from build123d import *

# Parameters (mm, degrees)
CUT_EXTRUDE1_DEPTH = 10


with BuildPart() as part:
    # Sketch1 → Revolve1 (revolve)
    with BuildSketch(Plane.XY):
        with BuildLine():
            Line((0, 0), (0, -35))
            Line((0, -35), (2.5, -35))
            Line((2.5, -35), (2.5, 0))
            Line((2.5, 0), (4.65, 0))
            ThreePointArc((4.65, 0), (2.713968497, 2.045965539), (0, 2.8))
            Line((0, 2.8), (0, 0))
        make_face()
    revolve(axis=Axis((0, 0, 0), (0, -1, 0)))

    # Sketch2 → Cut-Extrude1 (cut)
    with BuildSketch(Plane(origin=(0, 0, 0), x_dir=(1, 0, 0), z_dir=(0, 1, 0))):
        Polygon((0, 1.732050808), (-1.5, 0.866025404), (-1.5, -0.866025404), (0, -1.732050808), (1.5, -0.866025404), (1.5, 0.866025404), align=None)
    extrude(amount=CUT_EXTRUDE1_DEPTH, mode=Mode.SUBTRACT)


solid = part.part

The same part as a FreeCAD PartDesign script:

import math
import FreeCAD as App
import Part
import Sketcher

V = App.Vector
Q = App.Units.Quantity


def add_polygon(sketch, points):
    """Adds a closed chain of lines whose ends are joined by coincident constraints."""
    first, n = sketch.GeometryCount, len(points)
    for a, b in zip(points, points[1:] + points[:1]):
        sketch.addGeometry(Part.LineSegment(App.Vector(*a, 0), App.Vector(*b, 0)), False)
    for i in range(n):
        sketch.addConstraint(Sketcher.Constraint("Coincident", first + i, 2, first + (i + 1) % n, 1))

doc = App.newDocument("Part")
body = doc.addObject("PartDesign::Body", "Body")

# Sketch on XY plane
sketch1 = doc.addObject("Sketcher::SketchObject", "Sketch")
body.addObject(sketch1)
sketch1.AttachmentSupport = (doc.XY_Plane, [""])
sketch1.MapMode = "FlatFace"
sketch1.addGeometry(Part.LineSegment(V(0, -35, 0), V(2.5, -35, 0)), False)
sketch1.addGeometry(Part.LineSegment(V(2.5, -35, 0), V(2.5, 0, 0)), False)
sketch1.addGeometry(Part.LineSegment(V(2.5, 0, 0), V(4.65, 0, 0)), False)
sketch1.addGeometry(Part.ArcOfCircle(Part.Circle(V(0, -2.461161, 0), V(0, 0, 1), 5.261161), math.radians(27.891458), math.radians(90)), False)
sketch1.addGeometry(Part.LineSegment(V(0, 2.8, 0), V(0, -35, 0)), False)
sketch1.addConstraint(Sketcher.Constraint("Coincident", 0, 2, 1, 1))
sketch1.addConstraint(Sketcher.Constraint("Coincident", 1, 2, 2, 1))
sketch1.addConstraint(Sketcher.Constraint("Coincident", 2, 2, 3, 1))
sketch1.addConstraint(Sketcher.Constraint("Coincident", 3, 2, 4, 1))
sketch1.addConstraint(Sketcher.Constraint("Coincident", 4, 2, 0, 1))
sketch1.addConstraint(Sketcher.Constraint("Horizontal", 0))
sketch1.addConstraint(Sketcher.Constraint("Vertical", 1))
sketch1.addConstraint(Sketcher.Constraint("Horizontal", 2))
sketch1.addConstraint(Sketcher.Constraint("Vertical", 4))
sketch1.addConstraint(Sketcher.Constraint("PointOnObject", 3, 3, -2))
sketch1.addConstraint(Sketcher.Constraint("PointOnObject", 1, 2, -1))
sketch1.addConstraint(Sketcher.Constraint("PointOnObject", 3, 2, -2))
sketch1.addConstraint(Sketcher.Constraint("DistanceY", 1, 1, 1, 2, Q("35 mm")))
sketch1.addConstraint(Sketcher.Constraint("DistanceX", 0, 1, 0, 2, Q("2.5 mm")))
sketch1.addConstraint(Sketcher.Constraint("DistanceY", 4, 2, 4, 1, Q("37.8 mm")))
sketch1.addConstraint(Sketcher.Constraint("DistanceX", 2, 1, 2, 2, Q("2.15 mm")))
revolution = doc.addObject("PartDesign::Revolution", "Revolution")
body.addObject(revolution)
revolution.Profile = sketch1
revolution.ReferenceAxis = (sketch1, ["V_Axis"])
revolution.Angle = 360

# Sketch on XZ plane
sketch2 = doc.addObject("Sketcher::SketchObject", "Sketch001")
body.addObject(sketch2)
sketch2.AttachmentSupport = (doc.XZ_Plane, [""])
sketch2.MapMode = "FlatFace"
add_polygon(sketch2, [(0, -1.732051), (-1.5, -0.866025), (-1.5, 0.866025), (0, 1.732051), (1.5, 0.866025), (1.5, -0.866025)])  # lines 0-5
sketch2.addConstraint(Sketcher.Constraint("Vertical", 1))
sketch2.addConstraint(Sketcher.Constraint("Vertical", 4))
sketch2.addConstraint(Sketcher.Constraint("Symmetric", 0, 2, 3, 2, -1, 1))
sketch2.addConstraint(Sketcher.Constraint("Symmetric", 2, 2, 5, 2, -1, 1))
sketch2.addConstraint(Sketcher.Constraint("PointOnObject", 2, 2, -2))
sketch2.addConstraint(Sketcher.Constraint("Parallel", 2, 5))
sketch2.addConstraint(Sketcher.Constraint("Horizontal", 1, 2, 3, 2))
sketch2.addConstraint(Sketcher.Constraint("Angle", 0, Q("150 deg")))
sketch2.addConstraint(Sketcher.Constraint("DistanceX", 1, 2, 3, 2, Q("3 mm")))
sketch2.addConstraint(Sketcher.Constraint("DistanceY", 1, 1, 1, 2, Q("1.732051 mm")))
pocket1 = doc.addObject("PartDesign::Pocket", "Pocket")
body.addObject(pocket1)
pocket1.Profile = sketch2
pocket1.Length = 10

doc.recompute()
